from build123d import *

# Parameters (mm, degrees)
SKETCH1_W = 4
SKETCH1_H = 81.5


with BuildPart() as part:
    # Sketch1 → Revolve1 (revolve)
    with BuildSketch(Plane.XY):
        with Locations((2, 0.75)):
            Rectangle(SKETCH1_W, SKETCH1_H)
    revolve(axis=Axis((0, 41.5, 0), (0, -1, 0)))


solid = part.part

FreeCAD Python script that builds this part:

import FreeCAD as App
import Part
import Sketcher

V = App.Vector


def add_polygon(sketch, points):
    """Adds a closed chain of lines whose ends are joined by coincident constraints."""
    first, n = sketch.GeometryCount, len(points)
    for a, b in zip(points, points[1:] + points[:1]):
        sketch.addGeometry(Part.LineSegment(App.Vector(*a, 0), App.Vector(*b, 0)), False)
    for i in range(n):
        sketch.addConstraint(Sketcher.Constraint("Coincident", first + i, 2, first + (i + 1) % n, 1))

doc = App.newDocument("Part")
body = doc.addObject("PartDesign::Body", "Body")

# Sketch on XY plane
sketch1 = doc.addObject("Sketcher::SketchObject", "Sketch")
body.addObject(sketch1)
sketch1.AttachmentSupport = (doc.XY_Plane, [""])
sketch1.MapMode = "FlatFace"
add_polygon(sketch1, [(0, 41.5), (0, -40), (4, -40), (4, 41.5)])  # lines 0-3
sketch1.addConstraint([
    Sketcher.Constraint("Vertical", 0),
    Sketcher.Constraint("Horizontal", 1),
    Sketcher.Constraint("Vertical", 2),
    Sketcher.Constraint("Horizontal", 3),
    Sketcher.Constraint("PointOnObject", 0, 2, -2),
    Sketcher.Constraint("DistanceX", 1, 1, 1, 2, 4.0),
    Sketcher.Constraint("DistanceY", 0, 2, 0, 1, 81.5),
    Sketcher.Constraint("DistanceY", 0, 2, -1, 1, 40.0),
])
revolution = doc.addObject("PartDesign::Revolution", "Revolution")
body.addObject(revolution)
revolution.Profile = sketch1
revolution.ReferenceAxis = (sketch1, ["V_Axis"])
revolution.Angle = 360

doc.recompute()
